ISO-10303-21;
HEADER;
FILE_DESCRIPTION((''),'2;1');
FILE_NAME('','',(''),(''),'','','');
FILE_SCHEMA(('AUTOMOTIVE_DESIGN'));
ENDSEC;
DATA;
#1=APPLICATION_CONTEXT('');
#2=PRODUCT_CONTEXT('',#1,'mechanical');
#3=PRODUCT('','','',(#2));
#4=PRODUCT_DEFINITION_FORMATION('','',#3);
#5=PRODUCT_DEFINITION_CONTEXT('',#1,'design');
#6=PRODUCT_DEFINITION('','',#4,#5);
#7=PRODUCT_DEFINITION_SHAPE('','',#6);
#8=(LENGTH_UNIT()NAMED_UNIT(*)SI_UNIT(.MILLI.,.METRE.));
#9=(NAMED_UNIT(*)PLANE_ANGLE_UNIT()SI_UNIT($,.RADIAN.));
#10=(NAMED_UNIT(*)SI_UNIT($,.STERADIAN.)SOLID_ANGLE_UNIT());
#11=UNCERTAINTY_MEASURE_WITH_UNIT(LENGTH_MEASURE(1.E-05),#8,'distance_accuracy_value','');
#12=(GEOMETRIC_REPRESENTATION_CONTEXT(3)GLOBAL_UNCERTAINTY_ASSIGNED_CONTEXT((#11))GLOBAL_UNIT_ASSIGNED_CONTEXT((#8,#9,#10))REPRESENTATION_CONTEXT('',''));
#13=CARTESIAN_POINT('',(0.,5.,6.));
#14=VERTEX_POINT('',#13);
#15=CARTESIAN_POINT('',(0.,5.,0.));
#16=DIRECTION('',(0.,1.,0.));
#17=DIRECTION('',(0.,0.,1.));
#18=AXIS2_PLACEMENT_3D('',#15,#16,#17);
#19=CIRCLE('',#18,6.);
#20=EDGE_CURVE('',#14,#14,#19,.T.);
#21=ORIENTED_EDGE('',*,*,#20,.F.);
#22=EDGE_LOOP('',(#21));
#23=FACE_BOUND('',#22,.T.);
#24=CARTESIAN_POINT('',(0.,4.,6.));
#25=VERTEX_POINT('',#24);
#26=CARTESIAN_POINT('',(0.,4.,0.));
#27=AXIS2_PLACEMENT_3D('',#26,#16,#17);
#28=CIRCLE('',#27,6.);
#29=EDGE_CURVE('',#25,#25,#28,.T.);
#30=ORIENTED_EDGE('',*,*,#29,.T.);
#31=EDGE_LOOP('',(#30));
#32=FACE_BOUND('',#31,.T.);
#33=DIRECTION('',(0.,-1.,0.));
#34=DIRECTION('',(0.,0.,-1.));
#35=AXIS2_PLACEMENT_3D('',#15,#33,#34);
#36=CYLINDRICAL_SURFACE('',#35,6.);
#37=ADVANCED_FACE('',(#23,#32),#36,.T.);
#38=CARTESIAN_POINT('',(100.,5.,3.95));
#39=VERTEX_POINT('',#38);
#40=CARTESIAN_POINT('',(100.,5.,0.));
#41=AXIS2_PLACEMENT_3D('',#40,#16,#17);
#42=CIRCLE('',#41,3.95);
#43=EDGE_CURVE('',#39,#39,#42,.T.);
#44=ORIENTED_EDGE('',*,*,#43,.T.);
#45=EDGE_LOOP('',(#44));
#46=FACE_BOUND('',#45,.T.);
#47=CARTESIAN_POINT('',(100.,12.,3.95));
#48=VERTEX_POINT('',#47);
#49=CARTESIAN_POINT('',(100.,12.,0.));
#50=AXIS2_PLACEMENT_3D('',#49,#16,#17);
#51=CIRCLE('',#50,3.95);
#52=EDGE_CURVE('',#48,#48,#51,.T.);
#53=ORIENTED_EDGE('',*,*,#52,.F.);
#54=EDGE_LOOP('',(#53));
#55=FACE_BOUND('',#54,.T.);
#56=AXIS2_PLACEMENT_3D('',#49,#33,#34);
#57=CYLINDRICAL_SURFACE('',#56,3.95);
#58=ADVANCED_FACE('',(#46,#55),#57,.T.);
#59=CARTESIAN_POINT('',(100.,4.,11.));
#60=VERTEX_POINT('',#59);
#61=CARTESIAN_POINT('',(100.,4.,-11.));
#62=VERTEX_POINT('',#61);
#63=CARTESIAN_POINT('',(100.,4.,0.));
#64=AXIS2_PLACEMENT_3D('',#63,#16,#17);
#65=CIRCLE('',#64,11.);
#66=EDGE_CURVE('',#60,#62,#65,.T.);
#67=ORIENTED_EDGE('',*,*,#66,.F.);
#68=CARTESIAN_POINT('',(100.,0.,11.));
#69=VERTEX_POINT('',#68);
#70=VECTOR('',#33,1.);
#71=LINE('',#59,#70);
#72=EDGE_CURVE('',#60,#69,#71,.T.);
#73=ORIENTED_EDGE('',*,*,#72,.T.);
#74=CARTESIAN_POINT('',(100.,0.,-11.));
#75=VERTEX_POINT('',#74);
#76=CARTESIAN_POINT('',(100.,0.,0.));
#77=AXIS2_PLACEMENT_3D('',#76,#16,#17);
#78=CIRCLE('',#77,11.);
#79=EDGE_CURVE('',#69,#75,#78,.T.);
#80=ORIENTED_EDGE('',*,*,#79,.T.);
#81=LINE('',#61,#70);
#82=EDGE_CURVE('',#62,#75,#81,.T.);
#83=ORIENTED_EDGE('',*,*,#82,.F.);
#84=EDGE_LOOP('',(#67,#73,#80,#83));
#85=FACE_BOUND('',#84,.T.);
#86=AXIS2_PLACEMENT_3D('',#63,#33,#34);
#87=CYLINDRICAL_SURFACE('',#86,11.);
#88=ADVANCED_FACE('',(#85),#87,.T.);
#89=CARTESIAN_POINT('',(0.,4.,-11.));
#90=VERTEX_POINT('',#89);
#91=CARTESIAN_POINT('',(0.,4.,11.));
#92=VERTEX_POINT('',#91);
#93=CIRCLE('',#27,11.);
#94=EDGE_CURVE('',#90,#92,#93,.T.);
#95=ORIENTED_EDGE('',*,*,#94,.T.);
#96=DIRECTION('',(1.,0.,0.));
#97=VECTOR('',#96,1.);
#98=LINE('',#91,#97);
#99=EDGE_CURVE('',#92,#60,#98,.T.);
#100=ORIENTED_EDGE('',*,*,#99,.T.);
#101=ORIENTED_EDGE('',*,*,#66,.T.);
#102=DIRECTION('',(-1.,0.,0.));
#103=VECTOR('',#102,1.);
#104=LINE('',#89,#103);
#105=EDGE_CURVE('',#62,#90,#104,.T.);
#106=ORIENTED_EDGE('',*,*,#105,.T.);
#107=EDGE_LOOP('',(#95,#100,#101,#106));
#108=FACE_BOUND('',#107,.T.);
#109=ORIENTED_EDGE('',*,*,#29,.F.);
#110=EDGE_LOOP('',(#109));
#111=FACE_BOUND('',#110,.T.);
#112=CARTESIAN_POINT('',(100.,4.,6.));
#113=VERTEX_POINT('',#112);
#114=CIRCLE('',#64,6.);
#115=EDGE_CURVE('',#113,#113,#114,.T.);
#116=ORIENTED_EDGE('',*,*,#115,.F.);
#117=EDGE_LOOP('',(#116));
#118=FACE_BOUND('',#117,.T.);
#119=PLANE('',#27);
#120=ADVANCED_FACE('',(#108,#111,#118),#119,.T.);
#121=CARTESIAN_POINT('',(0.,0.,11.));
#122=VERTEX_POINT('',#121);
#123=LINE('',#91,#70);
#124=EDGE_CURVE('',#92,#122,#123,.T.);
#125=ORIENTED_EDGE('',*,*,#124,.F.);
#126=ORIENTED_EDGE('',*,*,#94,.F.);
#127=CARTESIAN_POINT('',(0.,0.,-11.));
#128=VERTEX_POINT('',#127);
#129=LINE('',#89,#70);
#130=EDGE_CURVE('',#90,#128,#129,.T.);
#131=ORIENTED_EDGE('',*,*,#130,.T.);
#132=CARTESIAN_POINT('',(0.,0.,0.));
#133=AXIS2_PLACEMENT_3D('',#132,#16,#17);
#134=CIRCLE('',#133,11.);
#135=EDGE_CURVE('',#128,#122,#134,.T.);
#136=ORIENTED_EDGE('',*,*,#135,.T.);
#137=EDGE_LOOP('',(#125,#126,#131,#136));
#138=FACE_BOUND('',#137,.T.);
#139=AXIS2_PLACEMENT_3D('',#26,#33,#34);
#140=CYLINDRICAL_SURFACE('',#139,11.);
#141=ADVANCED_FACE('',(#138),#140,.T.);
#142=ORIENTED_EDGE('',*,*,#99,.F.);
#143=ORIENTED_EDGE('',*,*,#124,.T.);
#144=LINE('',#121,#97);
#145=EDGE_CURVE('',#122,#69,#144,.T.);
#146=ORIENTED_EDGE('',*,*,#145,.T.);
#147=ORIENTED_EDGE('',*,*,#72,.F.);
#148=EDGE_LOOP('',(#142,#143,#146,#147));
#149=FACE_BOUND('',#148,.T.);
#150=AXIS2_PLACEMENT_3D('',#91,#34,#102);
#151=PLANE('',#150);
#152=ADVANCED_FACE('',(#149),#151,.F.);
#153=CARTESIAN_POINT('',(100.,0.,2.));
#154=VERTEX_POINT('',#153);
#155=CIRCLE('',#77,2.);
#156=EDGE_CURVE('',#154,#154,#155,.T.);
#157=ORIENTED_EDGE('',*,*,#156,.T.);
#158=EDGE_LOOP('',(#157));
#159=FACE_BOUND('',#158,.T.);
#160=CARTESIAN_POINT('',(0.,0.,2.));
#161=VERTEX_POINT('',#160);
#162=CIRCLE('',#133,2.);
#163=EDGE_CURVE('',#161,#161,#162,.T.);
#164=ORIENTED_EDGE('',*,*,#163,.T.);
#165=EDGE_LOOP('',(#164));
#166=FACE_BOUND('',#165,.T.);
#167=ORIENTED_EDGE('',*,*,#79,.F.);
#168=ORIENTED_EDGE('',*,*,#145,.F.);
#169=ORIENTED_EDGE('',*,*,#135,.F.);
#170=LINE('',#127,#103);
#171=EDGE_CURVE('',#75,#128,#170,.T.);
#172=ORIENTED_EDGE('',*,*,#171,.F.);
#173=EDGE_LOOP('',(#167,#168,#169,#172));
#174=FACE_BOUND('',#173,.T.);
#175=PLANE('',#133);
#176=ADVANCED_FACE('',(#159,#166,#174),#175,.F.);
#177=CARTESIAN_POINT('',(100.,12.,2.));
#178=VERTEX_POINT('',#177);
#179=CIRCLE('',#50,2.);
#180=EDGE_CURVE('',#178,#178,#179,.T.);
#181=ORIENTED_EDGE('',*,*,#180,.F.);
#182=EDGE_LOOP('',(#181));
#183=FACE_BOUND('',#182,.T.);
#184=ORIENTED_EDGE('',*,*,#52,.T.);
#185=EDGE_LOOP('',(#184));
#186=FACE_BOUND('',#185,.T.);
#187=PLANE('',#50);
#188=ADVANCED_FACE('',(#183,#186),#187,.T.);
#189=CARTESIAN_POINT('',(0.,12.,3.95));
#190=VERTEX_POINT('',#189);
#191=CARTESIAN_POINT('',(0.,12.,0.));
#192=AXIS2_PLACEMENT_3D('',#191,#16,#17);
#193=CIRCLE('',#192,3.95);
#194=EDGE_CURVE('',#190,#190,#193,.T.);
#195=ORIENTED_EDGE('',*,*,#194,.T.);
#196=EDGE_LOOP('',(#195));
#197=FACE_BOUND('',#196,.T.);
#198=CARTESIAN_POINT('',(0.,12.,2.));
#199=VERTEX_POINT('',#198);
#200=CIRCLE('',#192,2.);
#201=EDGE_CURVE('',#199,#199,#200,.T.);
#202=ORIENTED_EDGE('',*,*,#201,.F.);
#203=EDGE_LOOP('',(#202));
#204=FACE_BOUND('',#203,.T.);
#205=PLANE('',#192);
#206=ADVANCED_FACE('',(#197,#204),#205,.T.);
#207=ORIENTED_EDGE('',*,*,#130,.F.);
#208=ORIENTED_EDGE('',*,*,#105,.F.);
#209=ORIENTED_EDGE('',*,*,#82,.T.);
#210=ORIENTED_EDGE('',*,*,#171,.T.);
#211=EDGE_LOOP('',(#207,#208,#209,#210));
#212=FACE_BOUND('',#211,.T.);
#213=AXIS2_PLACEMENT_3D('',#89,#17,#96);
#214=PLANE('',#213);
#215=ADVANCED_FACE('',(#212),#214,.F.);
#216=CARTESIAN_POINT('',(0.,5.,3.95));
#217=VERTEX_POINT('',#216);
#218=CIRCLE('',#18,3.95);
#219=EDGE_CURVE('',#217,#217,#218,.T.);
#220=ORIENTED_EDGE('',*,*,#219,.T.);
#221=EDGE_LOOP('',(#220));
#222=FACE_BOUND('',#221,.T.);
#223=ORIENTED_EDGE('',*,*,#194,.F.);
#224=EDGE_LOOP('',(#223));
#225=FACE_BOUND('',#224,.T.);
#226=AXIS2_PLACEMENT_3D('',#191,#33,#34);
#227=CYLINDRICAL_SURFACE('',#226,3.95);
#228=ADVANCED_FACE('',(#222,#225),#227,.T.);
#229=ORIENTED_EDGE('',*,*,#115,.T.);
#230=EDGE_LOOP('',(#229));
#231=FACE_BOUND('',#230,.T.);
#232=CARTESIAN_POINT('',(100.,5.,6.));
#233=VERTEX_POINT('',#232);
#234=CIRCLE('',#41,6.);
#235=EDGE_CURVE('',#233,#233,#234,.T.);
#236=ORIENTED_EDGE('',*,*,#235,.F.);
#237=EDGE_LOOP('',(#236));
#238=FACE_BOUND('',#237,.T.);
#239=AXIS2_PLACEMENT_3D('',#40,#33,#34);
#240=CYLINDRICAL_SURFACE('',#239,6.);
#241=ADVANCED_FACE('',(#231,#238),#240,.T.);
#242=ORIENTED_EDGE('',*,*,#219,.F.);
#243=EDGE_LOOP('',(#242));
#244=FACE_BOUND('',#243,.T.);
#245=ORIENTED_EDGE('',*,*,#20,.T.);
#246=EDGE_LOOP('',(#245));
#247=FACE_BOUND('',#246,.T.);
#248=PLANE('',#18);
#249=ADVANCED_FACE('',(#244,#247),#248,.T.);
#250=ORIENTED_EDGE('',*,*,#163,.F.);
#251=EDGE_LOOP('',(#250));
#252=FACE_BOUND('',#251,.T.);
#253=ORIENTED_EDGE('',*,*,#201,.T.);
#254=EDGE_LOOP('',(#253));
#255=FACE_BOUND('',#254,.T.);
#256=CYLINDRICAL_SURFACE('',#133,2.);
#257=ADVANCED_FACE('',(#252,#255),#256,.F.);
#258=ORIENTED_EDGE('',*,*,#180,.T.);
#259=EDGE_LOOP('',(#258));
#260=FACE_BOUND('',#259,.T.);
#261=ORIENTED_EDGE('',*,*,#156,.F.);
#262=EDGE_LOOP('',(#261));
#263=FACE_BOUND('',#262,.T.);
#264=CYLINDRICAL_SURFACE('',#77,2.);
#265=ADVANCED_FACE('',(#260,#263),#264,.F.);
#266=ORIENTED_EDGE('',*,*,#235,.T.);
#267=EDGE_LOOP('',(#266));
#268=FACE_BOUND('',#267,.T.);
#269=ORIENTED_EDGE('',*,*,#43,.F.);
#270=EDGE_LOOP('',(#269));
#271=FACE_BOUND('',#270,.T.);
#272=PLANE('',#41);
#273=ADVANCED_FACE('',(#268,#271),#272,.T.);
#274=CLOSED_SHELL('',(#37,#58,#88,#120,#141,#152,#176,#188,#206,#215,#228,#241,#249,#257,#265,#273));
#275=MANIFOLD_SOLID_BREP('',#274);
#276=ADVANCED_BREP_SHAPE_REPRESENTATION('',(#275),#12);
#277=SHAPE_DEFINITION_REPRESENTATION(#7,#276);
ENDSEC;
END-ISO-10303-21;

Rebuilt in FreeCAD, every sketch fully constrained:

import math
import FreeCAD as App
import Part
import Sketcher

V = App.Vector

doc = App.newDocument("Part")
body = doc.addObject("PartDesign::Body", "Body")

sketch1 = body.newObject("Sketcher::SketchObject", "Sketch")
sketch1.AttachmentSupport = (doc.getObject("XZ_Plane"), [""])
sketch1.MapMode = "FlatFace"
sketch1.addGeometry([
    Part.LineSegment(V(100, -11, 0), V(0, -11, 0)),
    Part.ArcOfCircle(Part.Circle(V(0, 0, 0), V(0, 0, 1), 11), math.radians(90), math.radians(270)),
    Part.LineSegment(V(0, 11, 0), V(100, 11, 0)),
    Part.ArcOfCircle(Part.Circle(V(100, 0, 0), V(0, 0, 1), 11), math.radians(-90), math.radians(90)),
], False)
sketch1.addConstraint([
    Sketcher.Constraint("Tangent", 0, 2, 1, 2),
    Sketcher.Constraint("Tangent", 1, 1, 2, 1),
    Sketcher.Constraint("Tangent", 2, 2, 3, 2),
    Sketcher.Constraint("Tangent", 3, 1, 0, 1),
    Sketcher.Constraint("Horizontal", 0),
    Sketcher.Constraint("Horizontal", 2),
    Sketcher.Constraint("Coincident", 1, 3, -1, 1),
    Sketcher.Constraint("Radius", 1, 11.0),
    Sketcher.Constraint("DistanceX", 0, 2, 0, 1, 100.0),
])
pad1 = body.newObject("PartDesign::Pad", "Pad")
pad1.Profile = sketch1
pad1.Length = 4
pad1.Reversed = True

sketch2 = body.newObject("Sketcher::SketchObject", "Sketch001")
sketch2.AttachmentSupport = (doc.getObject("XZ_Plane"), [""])
sketch2.MapMode = "FlatFace"
sketch2.AttachmentOffset = App.Placement(V(0, 0, -4), App.Rotation())
sketch2.addGeometry([
    Part.Circle(V(0, 0, 0), V(0, 0, 1), 6),
    Part.Circle(V(100, 0, 0), V(0, 0, 1), 6),
], False)
sketch2.addConstraint([
    Sketcher.Constraint("Coincident", 0, 3, -1, 1),
    Sketcher.Constraint("Equal", 0, 1),
    Sketcher.Constraint("PointOnObject", 1, 3, -1),
    Sketcher.Constraint("Diameter", 0, 12.0),
    Sketcher.Constraint("DistanceX", -1, 1, 1, 3, 100.0),
])
pad2 = body.newObject("PartDesign::Pad", "Pad001")
pad2.Profile = sketch2
pad2.Length = 1
pad2.Reversed = True

sketch3 = body.newObject("Sketcher::SketchObject", "Sketch002")
sketch3.AttachmentSupport = (doc.getObject("XZ_Plane"), [""])
sketch3.MapMode = "FlatFace"
sketch3.AttachmentOffset = App.Placement(V(0, 0, -5), App.Rotation())
sketch3.addGeometry([
    Part.Circle(V(0, 0, 0), V(0, 0, 1), 4),
    Part.Circle(V(100, 0, 0), V(0, 0, 1), 4),
], False)
sketch3.addConstraint([
    Sketcher.Constraint("Coincident", 0, 3, -1, 1),
    Sketcher.Constraint("Equal", 0, 1),
    Sketcher.Constraint("PointOnObject", 1, 3, -1),
    Sketcher.Constraint("Diameter", 0, 7.9),
    Sketcher.Constraint("DistanceX", -1, 1, 1, 3, 100.0),
])
pad3 = body.newObject("PartDesign::Pad", "Pad002")
pad3.Profile = sketch3
pad3.Length = 7
pad3.Reversed = True

sketch4 = body.newObject("Sketcher::SketchObject", "Sketch003")
sketch4.AttachmentSupport = (doc.getObject("XZ_Plane"), [""])
sketch4.MapMode = "FlatFace"
sketch4.AttachmentOffset = App.Placement(V(0, 0, -12), App.Rotation())
sketch4.addGeometry([
    Part.Circle(V(0, 0, 0), V(0, 0, 1), 2),
    Part.Circle(V(100, 0, 0), V(0, 0, 1), 2),
], False)
sketch4.addConstraint([
    Sketcher.Constraint("Coincident", 0, 3, -1, 1),
    Sketcher.Constraint("Equal", 0, 1),
    Sketcher.Constraint("PointOnObject", 1, 3, -1),
    Sketcher.Constraint("Diameter", 0, 4.0),
    Sketcher.Constraint("DistanceX", -1, 1, 1, 3, 100.0),
])
pocket1 = body.newObject("PartDesign::Pocket", "Pocket")
pocket1.Profile = sketch4
pocket1.Type = "ThroughAll"
pocket1.Reversed = True

doc.recompute()
